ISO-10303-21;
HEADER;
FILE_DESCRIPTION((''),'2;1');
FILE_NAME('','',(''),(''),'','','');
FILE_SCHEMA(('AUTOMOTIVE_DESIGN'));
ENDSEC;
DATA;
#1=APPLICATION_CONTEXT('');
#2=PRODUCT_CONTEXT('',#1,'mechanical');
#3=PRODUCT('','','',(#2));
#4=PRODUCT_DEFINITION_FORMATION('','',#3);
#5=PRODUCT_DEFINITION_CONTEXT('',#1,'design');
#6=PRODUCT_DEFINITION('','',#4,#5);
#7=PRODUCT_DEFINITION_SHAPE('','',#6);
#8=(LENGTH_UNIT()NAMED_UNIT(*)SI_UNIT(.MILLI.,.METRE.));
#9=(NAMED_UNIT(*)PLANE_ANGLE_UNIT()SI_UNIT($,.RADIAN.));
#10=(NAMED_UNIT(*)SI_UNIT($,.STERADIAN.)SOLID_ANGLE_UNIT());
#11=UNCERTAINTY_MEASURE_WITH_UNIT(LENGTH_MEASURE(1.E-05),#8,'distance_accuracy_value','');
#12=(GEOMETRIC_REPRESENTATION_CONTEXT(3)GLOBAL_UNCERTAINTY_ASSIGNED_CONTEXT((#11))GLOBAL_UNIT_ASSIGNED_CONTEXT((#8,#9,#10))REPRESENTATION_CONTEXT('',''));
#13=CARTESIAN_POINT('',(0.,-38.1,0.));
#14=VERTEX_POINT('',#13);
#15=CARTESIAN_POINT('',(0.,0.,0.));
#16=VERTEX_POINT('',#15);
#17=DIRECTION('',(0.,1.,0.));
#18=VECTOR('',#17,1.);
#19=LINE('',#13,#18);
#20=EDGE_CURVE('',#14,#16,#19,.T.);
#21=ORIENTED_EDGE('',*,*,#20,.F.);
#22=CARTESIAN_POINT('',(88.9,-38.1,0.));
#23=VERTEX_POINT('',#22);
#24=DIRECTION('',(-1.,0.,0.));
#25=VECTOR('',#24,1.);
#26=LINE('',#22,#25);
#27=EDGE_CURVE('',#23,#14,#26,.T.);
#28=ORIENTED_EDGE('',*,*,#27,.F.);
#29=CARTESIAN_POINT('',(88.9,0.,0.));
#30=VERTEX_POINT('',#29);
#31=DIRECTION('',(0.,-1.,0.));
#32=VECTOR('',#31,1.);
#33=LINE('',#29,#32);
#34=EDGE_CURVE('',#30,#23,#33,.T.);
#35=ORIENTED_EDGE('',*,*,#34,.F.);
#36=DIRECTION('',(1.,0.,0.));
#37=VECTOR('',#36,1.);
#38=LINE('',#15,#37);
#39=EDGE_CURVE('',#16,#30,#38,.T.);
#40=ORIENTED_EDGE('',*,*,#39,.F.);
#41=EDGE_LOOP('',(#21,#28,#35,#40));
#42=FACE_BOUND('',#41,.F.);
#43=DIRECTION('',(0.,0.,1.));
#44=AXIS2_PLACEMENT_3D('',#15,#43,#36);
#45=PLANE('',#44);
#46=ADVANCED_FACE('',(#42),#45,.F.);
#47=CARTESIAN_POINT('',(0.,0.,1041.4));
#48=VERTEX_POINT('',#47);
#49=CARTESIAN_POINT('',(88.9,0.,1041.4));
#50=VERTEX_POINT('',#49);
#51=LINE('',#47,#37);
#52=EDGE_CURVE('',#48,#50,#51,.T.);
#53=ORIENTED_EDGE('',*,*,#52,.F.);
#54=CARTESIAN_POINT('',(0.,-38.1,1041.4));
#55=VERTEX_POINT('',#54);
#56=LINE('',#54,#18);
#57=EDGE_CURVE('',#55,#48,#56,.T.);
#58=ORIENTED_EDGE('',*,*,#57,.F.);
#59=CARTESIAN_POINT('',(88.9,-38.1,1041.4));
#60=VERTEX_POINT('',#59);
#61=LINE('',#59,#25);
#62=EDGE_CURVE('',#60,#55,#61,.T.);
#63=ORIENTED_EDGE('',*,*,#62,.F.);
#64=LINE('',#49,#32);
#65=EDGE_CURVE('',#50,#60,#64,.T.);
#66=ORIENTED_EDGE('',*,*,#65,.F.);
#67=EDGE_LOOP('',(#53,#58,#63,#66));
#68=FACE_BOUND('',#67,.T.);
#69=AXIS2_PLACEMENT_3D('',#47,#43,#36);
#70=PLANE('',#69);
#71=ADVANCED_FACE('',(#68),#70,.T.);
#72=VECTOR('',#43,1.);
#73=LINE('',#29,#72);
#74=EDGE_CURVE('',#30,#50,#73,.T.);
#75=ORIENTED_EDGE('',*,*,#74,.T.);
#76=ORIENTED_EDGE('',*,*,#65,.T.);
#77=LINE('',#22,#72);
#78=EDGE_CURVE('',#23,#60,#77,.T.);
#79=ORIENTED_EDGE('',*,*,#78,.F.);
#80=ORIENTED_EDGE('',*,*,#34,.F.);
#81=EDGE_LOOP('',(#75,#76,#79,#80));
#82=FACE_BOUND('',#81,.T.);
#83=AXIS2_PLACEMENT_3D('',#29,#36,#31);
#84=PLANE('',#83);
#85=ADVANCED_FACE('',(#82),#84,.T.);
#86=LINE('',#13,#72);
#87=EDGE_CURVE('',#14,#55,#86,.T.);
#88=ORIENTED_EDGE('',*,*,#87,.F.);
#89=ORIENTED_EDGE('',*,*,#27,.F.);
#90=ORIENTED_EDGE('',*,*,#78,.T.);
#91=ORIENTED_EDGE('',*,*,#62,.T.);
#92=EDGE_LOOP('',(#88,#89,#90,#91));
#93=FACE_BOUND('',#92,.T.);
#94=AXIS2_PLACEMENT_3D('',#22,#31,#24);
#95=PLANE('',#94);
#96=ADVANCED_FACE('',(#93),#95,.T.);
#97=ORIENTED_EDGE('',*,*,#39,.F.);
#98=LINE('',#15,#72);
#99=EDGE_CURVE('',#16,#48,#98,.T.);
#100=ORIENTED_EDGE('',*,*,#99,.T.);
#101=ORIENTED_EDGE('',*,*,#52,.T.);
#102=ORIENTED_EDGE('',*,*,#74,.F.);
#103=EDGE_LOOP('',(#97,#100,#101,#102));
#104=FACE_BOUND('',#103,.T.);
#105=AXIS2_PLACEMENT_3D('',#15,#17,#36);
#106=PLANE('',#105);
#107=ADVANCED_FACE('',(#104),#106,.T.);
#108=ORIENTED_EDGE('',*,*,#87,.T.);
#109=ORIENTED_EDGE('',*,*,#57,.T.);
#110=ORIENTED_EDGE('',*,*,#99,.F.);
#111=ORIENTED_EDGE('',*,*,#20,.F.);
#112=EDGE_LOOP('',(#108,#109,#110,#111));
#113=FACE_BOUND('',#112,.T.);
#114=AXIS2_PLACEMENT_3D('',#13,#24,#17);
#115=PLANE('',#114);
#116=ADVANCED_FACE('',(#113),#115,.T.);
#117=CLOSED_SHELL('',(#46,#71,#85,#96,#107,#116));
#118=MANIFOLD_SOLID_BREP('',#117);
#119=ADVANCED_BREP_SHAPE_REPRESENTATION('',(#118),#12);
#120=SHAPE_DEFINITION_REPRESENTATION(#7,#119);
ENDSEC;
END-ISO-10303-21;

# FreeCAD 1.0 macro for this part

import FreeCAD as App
import Part
import Sketcher
from FreeCAD import Vector
Q = App.Units.Quantity


def add_polygon(sketch, points):
    """Adds a closed chain of lines whose ends are joined by coincident constraints."""
    first, n = sketch.GeometryCount, len(points)
    for a, b in zip(points, points[1:] + points[:1]):
        sketch.addGeometry(Part.LineSegment(App.Vector(*a, 0), App.Vector(*b, 0)), False)
    for i in range(n):
        sketch.addConstraint(Sketcher.Constraint("Coincident", first + i, 2, first + (i + 1) % n, 1))

doc = App.newDocument("Part")
body = doc.addObject("PartDesign::Body", "Body")

# Sketch on XY plane
sketch1 = body.newObject("Sketcher::SketchObject", "Sketch")
sketch1.AttachmentSupport = (doc.getObject("XY_Plane"), [""])
sketch1.MapMode = "FlatFace"
add_polygon(sketch1, [(89, 0), (0, 0), (0, -38), (89, -38)])  # lines 0-3
sketch1.addConstraint([
    Sketcher.Constraint("Horizontal", 0),
    Sketcher.Constraint("Vertical", 1),
    Sketcher.Constraint("Horizontal", 2),
    Sketcher.Constraint("Vertical", 3),
    Sketcher.Constraint("Coincident", 0, 2, -1, 1),
    Sketcher.Constraint("DistanceX", 0, 2, 0, 1, Q("3.5 in")),
    Sketcher.Constraint("DistanceY", 1, 2, 1, 1, Q("1.5 in")),
])
pad1 = body.newObject("PartDesign::Pad", "Pad")
pad1.Profile = sketch1
pad1.Length = Q("41 in")

doc.recompute()
